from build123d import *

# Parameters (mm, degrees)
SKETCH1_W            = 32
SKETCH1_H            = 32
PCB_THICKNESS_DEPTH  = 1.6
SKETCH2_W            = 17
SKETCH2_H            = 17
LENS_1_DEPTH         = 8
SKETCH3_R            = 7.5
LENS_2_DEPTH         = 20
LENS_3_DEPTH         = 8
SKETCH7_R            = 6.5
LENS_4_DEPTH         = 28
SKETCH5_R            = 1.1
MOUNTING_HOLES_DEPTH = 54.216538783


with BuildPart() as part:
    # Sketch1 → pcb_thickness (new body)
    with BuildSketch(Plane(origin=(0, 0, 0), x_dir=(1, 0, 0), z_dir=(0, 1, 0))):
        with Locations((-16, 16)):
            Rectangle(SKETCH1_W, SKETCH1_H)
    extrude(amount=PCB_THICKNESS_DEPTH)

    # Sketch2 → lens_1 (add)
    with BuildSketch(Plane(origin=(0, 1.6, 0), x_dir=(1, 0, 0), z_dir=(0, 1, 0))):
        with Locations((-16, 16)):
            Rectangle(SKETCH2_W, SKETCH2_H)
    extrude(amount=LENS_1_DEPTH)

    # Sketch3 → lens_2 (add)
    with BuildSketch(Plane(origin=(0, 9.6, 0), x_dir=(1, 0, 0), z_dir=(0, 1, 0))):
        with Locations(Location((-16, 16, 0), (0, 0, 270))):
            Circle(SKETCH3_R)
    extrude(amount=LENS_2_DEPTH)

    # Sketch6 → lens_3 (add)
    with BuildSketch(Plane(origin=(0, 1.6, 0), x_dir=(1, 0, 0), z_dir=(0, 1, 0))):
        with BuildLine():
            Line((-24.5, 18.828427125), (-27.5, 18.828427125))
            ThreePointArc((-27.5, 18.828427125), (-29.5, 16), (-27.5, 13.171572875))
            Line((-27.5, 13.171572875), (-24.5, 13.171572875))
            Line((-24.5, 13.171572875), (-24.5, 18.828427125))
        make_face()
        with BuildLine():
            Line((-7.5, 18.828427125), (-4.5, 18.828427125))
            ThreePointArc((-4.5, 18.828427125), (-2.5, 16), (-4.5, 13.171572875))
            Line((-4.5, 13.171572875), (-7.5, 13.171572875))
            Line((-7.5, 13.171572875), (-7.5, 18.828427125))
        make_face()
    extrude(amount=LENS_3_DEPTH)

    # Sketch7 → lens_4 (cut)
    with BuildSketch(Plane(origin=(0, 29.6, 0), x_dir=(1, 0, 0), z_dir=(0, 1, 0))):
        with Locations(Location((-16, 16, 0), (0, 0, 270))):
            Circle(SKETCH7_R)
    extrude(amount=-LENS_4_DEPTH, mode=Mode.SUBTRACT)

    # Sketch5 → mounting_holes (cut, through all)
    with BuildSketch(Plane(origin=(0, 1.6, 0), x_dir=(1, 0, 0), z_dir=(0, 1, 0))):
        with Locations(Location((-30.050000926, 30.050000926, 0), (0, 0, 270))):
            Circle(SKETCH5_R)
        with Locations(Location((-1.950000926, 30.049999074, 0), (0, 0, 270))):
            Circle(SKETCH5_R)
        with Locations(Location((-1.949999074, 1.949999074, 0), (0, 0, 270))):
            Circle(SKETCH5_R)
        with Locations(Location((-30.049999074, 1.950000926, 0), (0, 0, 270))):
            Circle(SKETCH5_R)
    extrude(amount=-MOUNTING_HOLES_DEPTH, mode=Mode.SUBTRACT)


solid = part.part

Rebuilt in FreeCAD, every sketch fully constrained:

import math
import FreeCAD as App
import Part
import Sketcher
Q = App.Units.Quantity

doc = App.newDocument("Part")
body = doc.addObject("PartDesign::Body", "Body")

# Sketch on XZ plane
sketch1 = body.newObject("Sketcher::SketchObject", "Sketch")
sketch1.AttachmentSupport = (doc.getObject("XZ_Plane"), [""])
sketch1.MapMode = "FlatFace"
sketch1.addGeometry(Part.LineSegment(App.Vector(-32, -32, 0), App.Vector(-32, 0, 0)), False)
sketch1.addGeometry(Part.LineSegment(App.Vector(-32, 0, 0), App.Vector(0, 0, 0)), False)
sketch1.addGeometry(Part.LineSegment(App.Vector(0, 0, 0), App.Vector(0, -32, 0)), False)
sketch1.addGeometry(Part.LineSegment(App.Vector(0, -32, 0), App.Vector(-32, -32, 0)), False)
sketch1.addConstraint(Sketcher.Constraint("Coincident", 0, 2, 1, 1))
sketch1.addConstraint(Sketcher.Constraint("Coincident", 1, 2, 2, 1))
sketch1.addConstraint(Sketcher.Constraint("Coincident", 2, 2, 3, 1))
sketch1.addConstraint(Sketcher.Constraint("Coincident", 3, 2, 0, 1))
sketch1.addConstraint(Sketcher.Constraint("Vertical", 0))
sketch1.addConstraint(Sketcher.Constraint("Horizontal", 1))
sketch1.addConstraint(Sketcher.Constraint("Vertical", 2))
sketch1.addConstraint(Sketcher.Constraint("Horizontal", 3))
sketch1.addConstraint(Sketcher.Constraint("Coincident", 1, 2, -1, 1))
sketch1.addConstraint(Sketcher.Constraint("Equal", 3, 0))
sketch1.addConstraint(Sketcher.Constraint("DistanceX", 1, 1, 1, 2, Q("32 mm")))
pad1 = body.newObject("PartDesign::Pad", "Pad")
pad1.Profile = sketch1
pad1.Length = 1.6
pad1.Reversed = True

# Sketch on XZ plane
sketch2 = body.newObject("Sketcher::SketchObject", "Sketch001")
sketch2.AttachmentSupport = (doc.getObject("XZ_Plane"), [""])
sketch2.MapMode = "FlatFace"
sketch2.AttachmentOffset = App.Placement(App.Vector(0, 0, -1.6), App.Rotation())
sketch2.addGeometry(Part.LineSegment(App.Vector(-24, -24, 0), App.Vector(-24, -8, 0)), False)
sketch2.addGeometry(Part.LineSegment(App.Vector(-24, -8, 0), App.Vector(-8, -8, 0)), False)
sketch2.addGeometry(Part.LineSegment(App.Vector(-8, -8, 0), App.Vector(-8, -24, 0)), False)
sketch2.addGeometry(Part.LineSegment(App.Vector(-8, -24, 0), App.Vector(-24, -24, 0)), False)
sketch2.addConstraint(Sketcher.Constraint("Coincident", 0, 2, 1, 1))
sketch2.addConstraint(Sketcher.Constraint("Coincident", 1, 2, 2, 1))
sketch2.addConstraint(Sketcher.Constraint("Coincident", 2, 2, 3, 1))
sketch2.addConstraint(Sketcher.Constraint("Coincident", 3, 2, 0, 1))
sketch2.addConstraint(Sketcher.Constraint("Vertical", 0))
sketch2.addConstraint(Sketcher.Constraint("Horizontal", 1))
sketch2.addConstraint(Sketcher.Constraint("Vertical", 2))
sketch2.addConstraint(Sketcher.Constraint("Horizontal", 3))
sketch2.addConstraint(Sketcher.Constraint("Equal", 3, 0))
sketch2.addConstraint(Sketcher.Constraint("DistanceX", 1, 1, 1, 2, Q("17 mm")))
sketch2.addConstraint(Sketcher.Constraint("DistanceX", 0, 2, -1, 1, Q("24.5 mm")))
sketch2.addConstraint(Sketcher.Constraint("DistanceY", 0, 2, -1, 1, Q("7.5 mm")))
pad2 = body.newObject("PartDesign::Pad", "Pad001")
pad2.Profile = sketch2
pad2.Length = 8
pad2.Reversed = True

# Sketch on XZ plane
sketch3 = body.newObject("Sketcher::SketchObject", "Sketch002")
sketch3.AttachmentSupport = (doc.getObject("XZ_Plane"), [""])
sketch3.MapMode = "FlatFace"
sketch3.AttachmentOffset = App.Placement(App.Vector(0, 0, -9.6), App.Rotation())
sketch3.addGeometry(Part.Circle(App.Vector(-16, -16, 0), App.Vector(0, 0, 1), 8), False)
sketch3.addConstraint(Sketcher.Constraint("Diameter", 0, Q("15 mm")))
sketch3.addConstraint(Sketcher.Constraint("DistanceX", 0, 3, -1, 1, Q("16 mm")))
sketch3.addConstraint(Sketcher.Constraint("DistanceY", 0, 3, -1, 1, Q("16 mm")))
pad3 = body.newObject("PartDesign::Pad", "Pad002")
pad3.Profile = sketch3
pad3.Length = 20
pad3.Reversed = True

# Sketch on XZ plane
sketch4 = body.newObject("Sketcher::SketchObject", "Sketch003")
sketch4.AttachmentSupport = (doc.getObject("XZ_Plane"), [""])
sketch4.MapMode = "FlatFace"
sketch4.AttachmentOffset = App.Placement(App.Vector(0, 0, -1.6), App.Rotation())
sketch4.addGeometry(Part.LineSegment(App.Vector(-24.5, -18.8, 0), App.Vector(-27.5, -18.8, 0)), False)
sketch4.addGeometry(Part.ArcOfCircle(Part.Circle(App.Vector(-26.5, -16, 0), App.Vector(0, 0, 1), 3), math.radians(109), math.radians(251)), False)
sketch4.addGeometry(Part.LineSegment(App.Vector(-27.5, -13.2, 0), App.Vector(-24.5, -13.2, 0)), False)
sketch4.addGeometry(Part.LineSegment(App.Vector(-24.5, -13.2, 0), App.Vector(-24.5, -18.8, 0)), False)
sketch4.addGeometry(Part.LineSegment(App.Vector(-4.5, -18.8, 0), App.Vector(-7.5, -18.8, 0)), False)
sketch4.addGeometry(Part.LineSegment(App.Vector(-7.5, -18.8, 0), App.Vector(-7.5, -13.2, 0)), False)
sketch4.addGeometry(Part.LineSegment(App.Vector(-7.5, -13.2, 0), App.Vector(-4.5, -13.2, 0)), False)
sketch4.addGeometry(Part.ArcOfCircle(Part.Circle(App.Vector(-5.5, -16, 0), App.Vector(0, 0, 1), 3), math.radians(-71), math.radians(71)), False)
sketch4.addConstraint(Sketcher.Constraint("Coincident", 0, 2, 1, 2))
sketch4.addConstraint(Sketcher.Constraint("Coincident", 1, 1, 2, 1))
sketch4.addConstraint(Sketcher.Constraint("Coincident", 2, 2, 3, 1))
sketch4.addConstraint(Sketcher.Constraint("Coincident", 3, 2, 0, 1))
sketch4.addConstraint(Sketcher.Constraint("Coincident", 4, 2, 5, 1))
sketch4.addConstraint(Sketcher.Constraint("Coincident", 5, 2, 6, 1))
sketch4.addConstraint(Sketcher.Constraint("Coincident", 6, 2, 7, 2))
sketch4.addConstraint(Sketcher.Constraint("Coincident", 7, 1, 4, 1))
sketch4.addConstraint(Sketcher.Constraint("Horizontal", 0))
sketch4.addConstraint(Sketcher.Constraint("Horizontal", 2))
sketch4.addConstraint(Sketcher.Constraint("Vertical", 3))
sketch4.addConstraint(Sketcher.Constraint("Horizontal", 4))
sketch4.addConstraint(Sketcher.Constraint("Vertical", 5))
sketch4.addConstraint(Sketcher.Constraint("Horizontal", 6))
sketch4.addConstraint(Sketcher.Constraint("Equal", 1, 7))
sketch4.addConstraint(Sketcher.Constraint("Horizontal", 1, 3, 7, 3))
sketch4.addConstraint(Sketcher.Constraint("Horizontal", 3, 2, 4, 2))
sketch4.addConstraint(Sketcher.Constraint("Horizontal", 2, 2, 5, 2))
sketch4.addConstraint(Sketcher.Constraint("Vertical", 0, 2, 1, 1))
sketch4.addConstraint(Sketcher.Constraint("Equal", 2, 4))
sketch4.addConstraint(Sketcher.Constraint("Radius", 1, Q("3 mm")))
sketch4.addConstraint(Sketcher.Constraint("DistanceX", 0, 2, 0, 1, Q("3 mm")))
sketch4.addConstraint(Sketcher.Constraint("DistanceY", 1, 3, -1, 1, Q("16 mm")))
sketch4.addConstraint(Sketcher.Constraint("DistanceX", 1, 3, 7, 3, Q("21 mm")))
sketch4.addConstraint(Sketcher.Constraint("DistanceX", 0, 2, 1, 3, Q("1 mm")))
sketch4.addConstraint(Sketcher.Constraint("DistanceX", 1, 3, -1, 1, Q("26.5 mm")))
pad4 = body.newObject("PartDesign::Pad", "Pad003")
pad4.Profile = sketch4
pad4.Length = 8
pad4.Reversed = True

# Sketch on XZ plane
sketch5 = body.newObject("Sketcher::SketchObject", "Sketch004")
sketch5.AttachmentSupport = (doc.getObject("XZ_Plane"), [""])
sketch5.MapMode = "FlatFace"
sketch5.AttachmentOffset = App.Placement(App.Vector(0, 0, -29.6), App.Rotation())
sketch5.addGeometry(Part.Circle(App.Vector(-16, -16, 0), App.Vector(0, 0, 1), 6), False)
sketch5.addConstraint(Sketcher.Constraint("Diameter", 0, Q("13 mm")))
sketch5.addConstraint(Sketcher.Constraint("DistanceX", 0, 3, -1, 1, Q("16 mm")))
sketch5.addConstraint(Sketcher.Constraint("DistanceY", 0, 3, -1, 1, Q("16 mm")))
pocket1 = body.newObject("PartDesign::Pocket", "Pocket")
pocket1.Profile = sketch5
pocket1.Length = 28
pocket1.Reversed = True

# Sketch on XZ plane
sketch6 = body.newObject("Sketcher::SketchObject", "Sketch005")
sketch6.AttachmentSupport = (doc.getObject("XZ_Plane"), [""])
sketch6.MapMode = "FlatFace"
sketch6.AttachmentOffset = App.Placement(App.Vector(0, 0, -1.6), App.Rotation())
sketch6.addGeometry(Part.Circle(App.Vector(-30.1, -30.1, 0), App.Vector(0, 0, 1), 1.1), False)
sketch6.addGeometry(Part.Circle(App.Vector(-2, -30, 0), App.Vector(0, 0, 1), 1.1), False)
sketch6.addGeometry(Part.Circle(App.Vector(-1.9, -1.9, 0), App.Vector(0, 0, 1), 1.1), False)
sketch6.addGeometry(Part.Circle(App.Vector(-30, -2, 0), App.Vector(0, 0, 1), 1.1), False)
sketch6.addConstraint(Sketcher.Constraint("Equal", 0, 1))
sketch6.addConstraint(Sketcher.Constraint("Equal", 1, 2))
sketch6.addConstraint(Sketcher.Constraint("Equal", 2, 3))
sketch6.addConstraint(Sketcher.Constraint("Horizontal", 0, 3, 1, 3))
sketch6.addConstraint(Sketcher.Constraint("Horizontal", 2, 3, 3, 3))
sketch6.addConstraint(Sketcher.Constraint("Vertical", 1, 3, 2, 3))
sketch6.addConstraint(Sketcher.Constraint("Vertical", 0, 3, 3, 3))
sketch6.addConstraint(Sketcher.Constraint("Diameter", 0, Q("2.2 mm")))
sketch6.addConstraint(Sketcher.Constraint("DistanceX", 0, 3, 1, 3, Q("28.1 mm")))
sketch6.addConstraint(Sketcher.Constraint("DistanceY", 1, 3, 2, 3, Q("28.1 mm")))
sketch6.addConstraint(Sketcher.Constraint("DistanceX", 0, 3, -1, 1, Q("30.050001 mm")))
sketch6.addConstraint(Sketcher.Constraint("DistanceY", 0, 3, -1, 1, Q("30.050001 mm")))
pocket2 = body.newObject("PartDesign::Pocket", "Pocket001")
pocket2.Profile = sketch6
pocket2.Type = "ThroughAll"
pocket2.Reversed = True

doc.recompute()
